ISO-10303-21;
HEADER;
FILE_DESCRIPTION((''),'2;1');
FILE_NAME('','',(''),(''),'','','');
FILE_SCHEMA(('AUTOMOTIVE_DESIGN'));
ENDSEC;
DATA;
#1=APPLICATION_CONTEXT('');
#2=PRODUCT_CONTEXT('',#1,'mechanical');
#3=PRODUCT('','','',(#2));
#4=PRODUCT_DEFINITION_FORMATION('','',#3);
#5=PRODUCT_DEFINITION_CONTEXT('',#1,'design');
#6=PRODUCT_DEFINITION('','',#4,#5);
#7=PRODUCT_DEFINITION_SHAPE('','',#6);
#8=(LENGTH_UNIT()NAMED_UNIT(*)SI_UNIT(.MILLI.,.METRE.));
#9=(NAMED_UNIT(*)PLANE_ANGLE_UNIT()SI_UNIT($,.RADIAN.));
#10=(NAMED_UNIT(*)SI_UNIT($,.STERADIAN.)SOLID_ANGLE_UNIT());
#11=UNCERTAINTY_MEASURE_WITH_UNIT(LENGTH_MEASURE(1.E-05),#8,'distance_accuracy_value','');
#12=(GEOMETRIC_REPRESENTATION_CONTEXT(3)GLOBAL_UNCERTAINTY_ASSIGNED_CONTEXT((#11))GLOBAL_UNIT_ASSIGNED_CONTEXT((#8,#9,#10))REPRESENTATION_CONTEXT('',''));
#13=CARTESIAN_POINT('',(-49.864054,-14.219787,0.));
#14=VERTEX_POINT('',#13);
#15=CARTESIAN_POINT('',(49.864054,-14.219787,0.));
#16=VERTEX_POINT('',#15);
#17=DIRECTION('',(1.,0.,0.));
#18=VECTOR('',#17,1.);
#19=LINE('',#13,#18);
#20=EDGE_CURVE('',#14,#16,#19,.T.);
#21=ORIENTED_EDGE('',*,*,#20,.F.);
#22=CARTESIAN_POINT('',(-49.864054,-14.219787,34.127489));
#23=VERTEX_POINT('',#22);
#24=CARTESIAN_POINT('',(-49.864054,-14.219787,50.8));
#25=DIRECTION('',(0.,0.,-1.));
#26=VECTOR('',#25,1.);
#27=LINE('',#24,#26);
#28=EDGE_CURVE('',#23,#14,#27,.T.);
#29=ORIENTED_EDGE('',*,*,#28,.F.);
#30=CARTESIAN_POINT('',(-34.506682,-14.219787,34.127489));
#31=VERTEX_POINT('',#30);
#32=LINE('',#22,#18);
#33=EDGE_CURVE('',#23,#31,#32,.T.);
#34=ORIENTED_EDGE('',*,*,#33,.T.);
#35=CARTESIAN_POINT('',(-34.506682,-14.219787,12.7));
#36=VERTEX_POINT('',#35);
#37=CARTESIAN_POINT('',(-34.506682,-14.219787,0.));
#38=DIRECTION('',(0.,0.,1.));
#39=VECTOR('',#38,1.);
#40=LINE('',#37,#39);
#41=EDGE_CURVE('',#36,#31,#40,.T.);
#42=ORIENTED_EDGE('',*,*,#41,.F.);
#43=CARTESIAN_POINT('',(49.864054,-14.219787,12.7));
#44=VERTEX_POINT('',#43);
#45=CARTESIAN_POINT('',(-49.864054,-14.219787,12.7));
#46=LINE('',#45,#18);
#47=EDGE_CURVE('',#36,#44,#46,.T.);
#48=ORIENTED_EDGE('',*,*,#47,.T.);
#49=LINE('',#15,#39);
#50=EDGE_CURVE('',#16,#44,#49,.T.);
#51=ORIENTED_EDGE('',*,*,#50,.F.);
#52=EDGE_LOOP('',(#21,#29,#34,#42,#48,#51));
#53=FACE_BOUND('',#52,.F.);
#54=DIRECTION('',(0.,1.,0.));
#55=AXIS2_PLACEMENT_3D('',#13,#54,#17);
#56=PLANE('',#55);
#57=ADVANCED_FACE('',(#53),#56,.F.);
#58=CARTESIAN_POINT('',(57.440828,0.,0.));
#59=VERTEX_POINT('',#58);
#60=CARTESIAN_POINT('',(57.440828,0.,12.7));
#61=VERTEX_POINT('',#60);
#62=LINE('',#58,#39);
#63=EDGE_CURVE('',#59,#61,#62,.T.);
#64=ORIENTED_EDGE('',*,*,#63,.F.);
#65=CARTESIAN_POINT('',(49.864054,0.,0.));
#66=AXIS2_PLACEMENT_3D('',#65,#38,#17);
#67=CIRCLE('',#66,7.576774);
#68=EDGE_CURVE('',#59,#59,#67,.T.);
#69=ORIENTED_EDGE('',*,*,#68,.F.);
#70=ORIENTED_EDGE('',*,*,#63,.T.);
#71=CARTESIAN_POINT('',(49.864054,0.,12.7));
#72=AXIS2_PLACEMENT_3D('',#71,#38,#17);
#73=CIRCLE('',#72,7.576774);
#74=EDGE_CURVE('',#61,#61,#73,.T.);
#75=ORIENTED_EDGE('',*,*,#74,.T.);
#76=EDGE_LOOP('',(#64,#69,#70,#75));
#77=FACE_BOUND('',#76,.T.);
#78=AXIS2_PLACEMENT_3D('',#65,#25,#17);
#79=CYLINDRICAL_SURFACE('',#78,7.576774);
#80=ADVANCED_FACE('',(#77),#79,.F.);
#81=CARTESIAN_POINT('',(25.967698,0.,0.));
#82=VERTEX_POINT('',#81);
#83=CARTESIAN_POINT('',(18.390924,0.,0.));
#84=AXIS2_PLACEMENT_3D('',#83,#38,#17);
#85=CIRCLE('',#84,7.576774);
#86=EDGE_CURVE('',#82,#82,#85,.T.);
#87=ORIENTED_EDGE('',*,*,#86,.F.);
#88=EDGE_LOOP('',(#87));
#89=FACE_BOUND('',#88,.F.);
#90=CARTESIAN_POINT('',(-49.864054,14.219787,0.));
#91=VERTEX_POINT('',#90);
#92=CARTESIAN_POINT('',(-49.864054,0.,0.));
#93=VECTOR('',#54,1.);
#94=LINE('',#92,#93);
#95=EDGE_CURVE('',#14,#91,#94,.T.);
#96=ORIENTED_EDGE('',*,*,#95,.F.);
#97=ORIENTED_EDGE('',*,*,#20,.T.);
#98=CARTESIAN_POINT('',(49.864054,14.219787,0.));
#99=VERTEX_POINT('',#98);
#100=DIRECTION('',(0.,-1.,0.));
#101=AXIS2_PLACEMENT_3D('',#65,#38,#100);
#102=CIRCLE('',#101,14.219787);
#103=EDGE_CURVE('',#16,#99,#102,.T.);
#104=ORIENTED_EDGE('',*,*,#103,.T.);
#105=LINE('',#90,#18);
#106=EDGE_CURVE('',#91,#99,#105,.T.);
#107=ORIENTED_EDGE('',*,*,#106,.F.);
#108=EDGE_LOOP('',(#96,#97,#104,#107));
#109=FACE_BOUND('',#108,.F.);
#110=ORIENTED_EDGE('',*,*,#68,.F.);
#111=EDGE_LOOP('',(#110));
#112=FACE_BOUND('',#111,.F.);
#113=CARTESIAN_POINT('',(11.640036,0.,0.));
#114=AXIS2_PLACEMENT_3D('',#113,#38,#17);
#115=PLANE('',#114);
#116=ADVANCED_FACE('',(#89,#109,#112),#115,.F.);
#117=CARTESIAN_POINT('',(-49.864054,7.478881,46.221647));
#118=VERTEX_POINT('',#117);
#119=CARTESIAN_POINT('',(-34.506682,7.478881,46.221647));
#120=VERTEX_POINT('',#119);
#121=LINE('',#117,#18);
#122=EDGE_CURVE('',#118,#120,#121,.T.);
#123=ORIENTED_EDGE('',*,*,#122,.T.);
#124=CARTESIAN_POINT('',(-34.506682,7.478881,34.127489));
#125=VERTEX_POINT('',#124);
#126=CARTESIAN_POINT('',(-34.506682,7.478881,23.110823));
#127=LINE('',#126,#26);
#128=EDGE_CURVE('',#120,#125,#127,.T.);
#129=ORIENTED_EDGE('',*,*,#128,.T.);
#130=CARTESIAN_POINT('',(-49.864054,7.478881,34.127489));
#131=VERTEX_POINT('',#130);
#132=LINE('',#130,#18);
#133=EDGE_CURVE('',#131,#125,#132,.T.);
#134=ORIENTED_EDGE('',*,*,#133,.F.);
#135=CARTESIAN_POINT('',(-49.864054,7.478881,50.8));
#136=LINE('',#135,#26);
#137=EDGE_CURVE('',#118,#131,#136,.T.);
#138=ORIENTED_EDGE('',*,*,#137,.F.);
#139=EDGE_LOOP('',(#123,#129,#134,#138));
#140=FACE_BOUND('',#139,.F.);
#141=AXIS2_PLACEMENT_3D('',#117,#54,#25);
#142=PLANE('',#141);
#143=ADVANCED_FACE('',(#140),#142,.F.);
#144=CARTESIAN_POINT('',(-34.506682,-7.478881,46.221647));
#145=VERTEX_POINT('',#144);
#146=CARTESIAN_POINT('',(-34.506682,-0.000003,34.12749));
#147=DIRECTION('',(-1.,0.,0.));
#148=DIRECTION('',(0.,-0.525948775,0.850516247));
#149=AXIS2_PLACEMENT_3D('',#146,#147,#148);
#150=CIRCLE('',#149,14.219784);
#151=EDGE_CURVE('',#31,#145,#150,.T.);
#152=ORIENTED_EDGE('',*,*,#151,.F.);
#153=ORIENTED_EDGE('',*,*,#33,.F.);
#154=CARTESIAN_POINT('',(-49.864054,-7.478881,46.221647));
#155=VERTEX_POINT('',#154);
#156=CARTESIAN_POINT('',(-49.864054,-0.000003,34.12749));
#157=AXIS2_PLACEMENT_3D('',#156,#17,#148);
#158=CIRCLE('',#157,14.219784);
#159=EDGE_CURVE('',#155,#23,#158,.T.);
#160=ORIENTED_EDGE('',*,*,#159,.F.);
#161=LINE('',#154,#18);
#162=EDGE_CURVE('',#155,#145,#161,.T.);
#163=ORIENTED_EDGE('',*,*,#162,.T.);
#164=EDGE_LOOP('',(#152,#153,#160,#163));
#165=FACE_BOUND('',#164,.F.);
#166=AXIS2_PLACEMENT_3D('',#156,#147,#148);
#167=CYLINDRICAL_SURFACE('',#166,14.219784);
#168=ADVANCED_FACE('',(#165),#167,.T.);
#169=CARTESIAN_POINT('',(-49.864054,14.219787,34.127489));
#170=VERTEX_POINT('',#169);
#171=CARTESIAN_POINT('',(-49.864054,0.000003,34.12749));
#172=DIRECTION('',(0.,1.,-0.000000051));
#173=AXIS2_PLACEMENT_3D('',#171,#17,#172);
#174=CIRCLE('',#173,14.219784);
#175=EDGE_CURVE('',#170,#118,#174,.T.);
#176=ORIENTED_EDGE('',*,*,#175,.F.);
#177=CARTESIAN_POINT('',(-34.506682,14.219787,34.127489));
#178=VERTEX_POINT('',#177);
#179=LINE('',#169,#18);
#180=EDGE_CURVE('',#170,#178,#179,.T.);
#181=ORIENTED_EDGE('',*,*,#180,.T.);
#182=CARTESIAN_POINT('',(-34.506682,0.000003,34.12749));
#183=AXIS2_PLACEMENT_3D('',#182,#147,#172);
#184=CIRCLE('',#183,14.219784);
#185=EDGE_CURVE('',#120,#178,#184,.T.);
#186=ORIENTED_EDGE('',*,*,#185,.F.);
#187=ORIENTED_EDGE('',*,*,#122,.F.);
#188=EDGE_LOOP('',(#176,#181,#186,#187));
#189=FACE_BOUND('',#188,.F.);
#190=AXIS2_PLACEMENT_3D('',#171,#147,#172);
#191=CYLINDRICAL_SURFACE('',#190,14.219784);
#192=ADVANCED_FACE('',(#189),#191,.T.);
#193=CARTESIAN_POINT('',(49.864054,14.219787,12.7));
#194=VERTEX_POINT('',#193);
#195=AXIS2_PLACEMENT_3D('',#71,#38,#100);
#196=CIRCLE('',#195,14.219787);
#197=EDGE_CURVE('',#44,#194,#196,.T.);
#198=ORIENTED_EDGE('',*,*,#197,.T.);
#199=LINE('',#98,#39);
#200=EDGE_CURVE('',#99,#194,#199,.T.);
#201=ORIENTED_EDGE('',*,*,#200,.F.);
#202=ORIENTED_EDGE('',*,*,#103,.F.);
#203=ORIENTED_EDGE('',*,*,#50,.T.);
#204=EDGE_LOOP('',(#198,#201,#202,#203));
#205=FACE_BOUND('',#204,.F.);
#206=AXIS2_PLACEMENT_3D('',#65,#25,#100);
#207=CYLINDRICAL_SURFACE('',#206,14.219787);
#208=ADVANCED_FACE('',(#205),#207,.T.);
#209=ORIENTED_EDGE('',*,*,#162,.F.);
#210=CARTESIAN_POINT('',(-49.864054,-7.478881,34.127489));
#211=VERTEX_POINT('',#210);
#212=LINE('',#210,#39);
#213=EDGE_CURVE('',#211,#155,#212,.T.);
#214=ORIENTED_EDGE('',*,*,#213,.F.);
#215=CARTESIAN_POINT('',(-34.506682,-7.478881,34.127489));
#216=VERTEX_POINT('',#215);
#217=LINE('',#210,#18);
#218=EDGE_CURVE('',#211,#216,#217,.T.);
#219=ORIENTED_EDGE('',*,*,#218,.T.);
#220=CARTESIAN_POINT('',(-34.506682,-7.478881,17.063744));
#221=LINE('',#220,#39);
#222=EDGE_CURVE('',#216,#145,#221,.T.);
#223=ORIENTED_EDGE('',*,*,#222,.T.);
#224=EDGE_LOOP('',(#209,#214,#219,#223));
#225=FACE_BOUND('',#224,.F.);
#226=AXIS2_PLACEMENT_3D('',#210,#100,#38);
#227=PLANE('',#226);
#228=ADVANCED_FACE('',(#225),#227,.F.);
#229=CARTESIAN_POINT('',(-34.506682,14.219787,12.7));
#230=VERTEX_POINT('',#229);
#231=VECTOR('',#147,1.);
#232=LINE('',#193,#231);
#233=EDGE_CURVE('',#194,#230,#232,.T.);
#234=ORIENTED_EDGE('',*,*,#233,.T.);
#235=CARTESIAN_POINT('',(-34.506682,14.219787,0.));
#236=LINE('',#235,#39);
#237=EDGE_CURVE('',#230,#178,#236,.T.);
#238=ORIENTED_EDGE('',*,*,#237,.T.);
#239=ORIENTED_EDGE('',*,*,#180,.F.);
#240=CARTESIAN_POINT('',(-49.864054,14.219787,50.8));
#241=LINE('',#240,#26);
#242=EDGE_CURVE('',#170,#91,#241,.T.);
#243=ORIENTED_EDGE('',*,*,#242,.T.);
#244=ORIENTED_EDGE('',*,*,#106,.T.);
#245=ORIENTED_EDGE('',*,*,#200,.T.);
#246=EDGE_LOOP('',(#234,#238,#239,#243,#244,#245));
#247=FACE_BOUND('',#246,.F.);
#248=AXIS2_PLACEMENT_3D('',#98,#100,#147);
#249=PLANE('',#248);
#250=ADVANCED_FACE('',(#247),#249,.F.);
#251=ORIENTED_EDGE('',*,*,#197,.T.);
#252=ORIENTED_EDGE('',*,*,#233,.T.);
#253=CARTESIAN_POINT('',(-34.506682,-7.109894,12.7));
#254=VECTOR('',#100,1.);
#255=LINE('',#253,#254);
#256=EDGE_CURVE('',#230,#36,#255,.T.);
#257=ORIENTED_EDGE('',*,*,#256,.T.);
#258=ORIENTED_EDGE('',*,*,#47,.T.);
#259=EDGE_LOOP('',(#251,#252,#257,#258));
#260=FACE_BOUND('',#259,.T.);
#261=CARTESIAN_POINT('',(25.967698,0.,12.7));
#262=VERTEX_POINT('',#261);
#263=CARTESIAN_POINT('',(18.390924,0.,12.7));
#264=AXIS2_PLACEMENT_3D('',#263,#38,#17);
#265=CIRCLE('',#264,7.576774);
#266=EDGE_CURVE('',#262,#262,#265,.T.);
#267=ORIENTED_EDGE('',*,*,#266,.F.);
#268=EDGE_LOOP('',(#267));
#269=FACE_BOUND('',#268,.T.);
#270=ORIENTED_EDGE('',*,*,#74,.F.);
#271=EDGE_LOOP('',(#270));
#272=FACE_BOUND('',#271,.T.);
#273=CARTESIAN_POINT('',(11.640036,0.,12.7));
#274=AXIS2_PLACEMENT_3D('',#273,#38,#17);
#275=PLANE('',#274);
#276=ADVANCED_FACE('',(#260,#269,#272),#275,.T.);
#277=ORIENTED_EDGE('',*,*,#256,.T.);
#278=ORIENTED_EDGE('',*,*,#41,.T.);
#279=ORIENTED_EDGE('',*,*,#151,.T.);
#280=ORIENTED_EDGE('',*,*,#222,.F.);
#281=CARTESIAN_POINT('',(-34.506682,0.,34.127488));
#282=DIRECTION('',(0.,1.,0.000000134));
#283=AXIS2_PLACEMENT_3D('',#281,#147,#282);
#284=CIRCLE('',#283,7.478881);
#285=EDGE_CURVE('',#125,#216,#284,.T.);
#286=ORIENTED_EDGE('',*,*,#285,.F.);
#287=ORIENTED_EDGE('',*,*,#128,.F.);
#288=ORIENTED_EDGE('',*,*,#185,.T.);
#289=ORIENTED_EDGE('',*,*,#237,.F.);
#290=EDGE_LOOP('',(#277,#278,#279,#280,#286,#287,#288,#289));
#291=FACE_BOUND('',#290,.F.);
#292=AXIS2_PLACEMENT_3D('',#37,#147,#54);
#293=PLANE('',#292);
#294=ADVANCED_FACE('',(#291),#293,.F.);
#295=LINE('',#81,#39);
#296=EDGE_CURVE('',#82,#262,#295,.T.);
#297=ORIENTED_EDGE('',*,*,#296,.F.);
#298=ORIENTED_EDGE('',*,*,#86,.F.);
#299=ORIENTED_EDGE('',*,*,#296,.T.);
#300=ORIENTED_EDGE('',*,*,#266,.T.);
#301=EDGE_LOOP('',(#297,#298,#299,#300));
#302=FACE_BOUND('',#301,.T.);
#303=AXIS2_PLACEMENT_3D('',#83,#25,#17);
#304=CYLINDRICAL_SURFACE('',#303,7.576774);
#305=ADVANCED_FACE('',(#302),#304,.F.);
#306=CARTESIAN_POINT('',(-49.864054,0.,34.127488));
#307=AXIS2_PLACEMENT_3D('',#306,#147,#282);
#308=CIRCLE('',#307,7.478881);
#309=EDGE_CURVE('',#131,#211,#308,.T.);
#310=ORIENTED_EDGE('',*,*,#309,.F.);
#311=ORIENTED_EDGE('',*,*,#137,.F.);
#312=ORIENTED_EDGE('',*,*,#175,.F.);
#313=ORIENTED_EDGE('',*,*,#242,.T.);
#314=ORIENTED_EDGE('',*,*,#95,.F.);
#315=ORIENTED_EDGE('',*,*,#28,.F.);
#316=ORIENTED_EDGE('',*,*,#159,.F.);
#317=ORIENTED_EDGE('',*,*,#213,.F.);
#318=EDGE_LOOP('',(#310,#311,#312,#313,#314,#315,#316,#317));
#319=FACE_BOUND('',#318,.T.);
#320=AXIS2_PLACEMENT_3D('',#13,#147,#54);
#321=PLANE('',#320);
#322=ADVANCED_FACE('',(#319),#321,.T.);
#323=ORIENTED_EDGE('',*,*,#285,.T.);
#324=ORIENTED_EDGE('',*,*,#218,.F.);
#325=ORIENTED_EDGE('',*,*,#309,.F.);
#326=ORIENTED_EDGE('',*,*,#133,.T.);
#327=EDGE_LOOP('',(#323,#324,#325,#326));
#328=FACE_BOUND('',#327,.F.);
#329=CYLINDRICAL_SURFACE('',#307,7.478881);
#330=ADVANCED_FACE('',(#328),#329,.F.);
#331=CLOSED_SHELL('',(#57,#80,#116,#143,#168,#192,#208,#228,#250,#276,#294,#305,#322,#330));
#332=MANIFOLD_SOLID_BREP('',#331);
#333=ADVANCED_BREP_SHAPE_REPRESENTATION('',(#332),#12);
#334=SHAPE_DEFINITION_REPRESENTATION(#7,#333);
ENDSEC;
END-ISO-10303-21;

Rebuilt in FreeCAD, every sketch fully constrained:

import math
import FreeCAD as App
import Part
import Sketcher

V = App.Vector
Q = App.Units.Quantity

doc = App.newDocument("Part")
params = doc.addObject("Spreadsheet::Sheet", "Params")
for row, (alias, value) in enumerate([
    ("pad1_length", "0.5 in"),
    ("pad2_length", "2 in"),
], start=1):
    params.set(f"A{row}", alias)
    params.set(f"B{row}", "=" + value)
    params.setAlias(f"B{row}", alias)

body = doc.addObject("PartDesign::Body", "Body")

# Sketch on XY plane
sketch1 = body.newObject("Sketcher::SketchObject", "Sketch")
sketch1.AttachmentSupport = (doc.getObject("XY_Plane"), [""])
sketch1.MapMode = "FlatFace"
sketch1.addGeometry(Part.ArcOfCircle(Part.Circle(V(50, 0, 0), V(0, 0, 1), 14), math.radians(-90), math.radians(90)), False)
sketch1.addGeometry(Part.LineSegment(V(50, 14, 0), V(-50, 14, 0)), False)
sketch1.addGeometry(Part.LineSegment(V(-50, 14, 0), V(-50, -14, 0)), False)
sketch1.addGeometry(Part.LineSegment(V(-50, -14, 0), V(50, -14, 0)), False)
sketch1.addGeometry(Part.Circle(V(18, 0, 0), V(0, 0, 1), 8), False)
sketch1.addGeometry(Part.Circle(V(50, 0, 0), V(0, 0, 1), 8), False)
sketch1.addConstraint(Sketcher.Constraint("Tangent", 0, 2, 1, 1))
sketch1.addConstraint(Sketcher.Constraint("Coincident", 1, 2, 2, 1))
sketch1.addConstraint(Sketcher.Constraint("Coincident", 2, 2, 3, 1))
sketch1.addConstraint(Sketcher.Constraint("Tangent", 3, 2, 0, 1))
sketch1.addConstraint(Sketcher.Constraint("Horizontal", 1))
sketch1.addConstraint(Sketcher.Constraint("Vertical", 2))
sketch1.addConstraint(Sketcher.Constraint("Horizontal", 3))
sketch1.addConstraint(Sketcher.Constraint("Coincident", 5, 3, 0, 3))
sketch1.addConstraint(Sketcher.Constraint("Equal", 4, 5))
sketch1.addConstraint(Sketcher.Constraint("Symmetric", 0, 2, 2, 2, -1, 1))
sketch1.addConstraint(Sketcher.Constraint("PointOnObject", 4, 3, -1))
sketch1.addConstraint(Sketcher.Constraint("Diameter", 4, Q("15.153548 mm")))
sketch1.addConstraint(Sketcher.Constraint("Radius", 0, Q("14.219787 mm")))
sketch1.addConstraint(Sketcher.Constraint("DistanceX", 1, 2, 1, 1, Q("99.728108 mm")))
sketch1.addConstraint(Sketcher.Constraint("DistanceX", 4, 3, 0, 3, Q("31.47313 mm")))
pad1 = body.newObject("PartDesign::Pad", "Pad")
pad1.Profile = sketch1
pad1.setExpression("Length", "Params.pad1_length")

# Sketch on XY plane
sketch2 = body.newObject("Sketcher::SketchObject", "Sketch001")
sketch2.AttachmentSupport = (doc.getObject("XY_Plane"), [""])
sketch2.MapMode = "FlatFace"
sketch2.addGeometry(Part.LineSegment(V(-50, 14, 0), V(-50, -14, 0)), False)
sketch2.addGeometry(Part.LineSegment(V(-50, -14, 0), V(-35, -14, 0)), False)
sketch2.addGeometry(Part.LineSegment(V(-35, -14, 0), V(-35, 14, 0)), False)
sketch2.addGeometry(Part.LineSegment(V(-35, 14, 0), V(-50, 14, 0)), False)
sketch2.addConstraint(Sketcher.Constraint("Coincident", 0, 2, 1, 1))
sketch2.addConstraint(Sketcher.Constraint("Coincident", 1, 2, 2, 1))
sketch2.addConstraint(Sketcher.Constraint("Coincident", 2, 2, 3, 1))
sketch2.addConstraint(Sketcher.Constraint("Coincident", 3, 2, 0, 1))
sketch2.addConstraint(Sketcher.Constraint("Vertical", 0))
sketch2.addConstraint(Sketcher.Constraint("Horizontal", 1))
sketch2.addConstraint(Sketcher.Constraint("Vertical", 2))
sketch2.addConstraint(Sketcher.Constraint("Horizontal", 3))
sketch2.addConstraint(Sketcher.Constraint("DistanceX", 1, 1, 1, 2, Q("15.357372 mm")))
sketch2.addConstraint(Sketcher.Constraint("DistanceY", 0, 2, 0, 1, Q("28.439574 mm")))
sketch2.addConstraint(Sketcher.Constraint("DistanceX", 1, 2, -1, 1, Q("34.506682 mm")))
sketch2.addConstraint(Sketcher.Constraint("DistanceY", 0, 2, -1, 1, Q("14.219787 mm")))
pad2 = body.newObject("PartDesign::Pad", "Pad001")
pad2.Profile = sketch2
pad2.setExpression("Length", "Params.pad2_length")

# Sketch on YZ plane
sketch3 = body.newObject("Sketcher::SketchObject", "Sketch002")
sketch3.AttachmentSupport = (doc.getObject("YZ_Plane"), [""])
sketch3.MapMode = "FlatFace"
sketch3.AttachmentOffset = App.Placement(V(0, 0, -49.864054), App.Rotation())
sketch3.addGeometry(Part.ArcOfCircle(Part.Circle(V(0, 34, 0), V(0, 0, 1), 14), math.radians(122), math.radians(180)), False)
sketch3.addGeometry(Part.LineSegment(V(-14, 34, 0), V(-14, 51, 0)), False)
sketch3.addGeometry(Part.LineSegment(V(-14, 51, 0), V(14, 51, 0)), False)
sketch3.addGeometry(Part.LineSegment(V(14, 51, 0), V(14, 34, 0)), False)
sketch3.addGeometry(Part.ArcOfCircle(Part.Circle(V(0, 34, 0), V(0, 0, 1), 14), math.radians(0), math.radians(58)), False)
sketch3.addGeometry(Part.LineSegment(V(7, 46, 0), V(7, 34, 0)), False)
sketch3.addGeometry(Part.ArcOfCircle(Part.Circle(V(0, 34, 0), V(0, 0, 1), 7), math.radians(180), math.radians(360)), False)
sketch3.addGeometry(Part.LineSegment(V(-7, 34, 0), V(-7, 46, 0)), False)
sketch3.addConstraint(Sketcher.Constraint("Tangent", 0, 2, 1, 1))
sketch3.addConstraint(Sketcher.Constraint("Coincident", 1, 2, 2, 1))
sketch3.addConstraint(Sketcher.Constraint("Coincident", 2, 2, 3, 1))
sketch3.addConstraint(Sketcher.Constraint("Tangent", 3, 2, 4, 1))
sketch3.addConstraint(Sketcher.Constraint("Coincident", 4, 2, 5, 1))
sketch3.addConstraint(Sketcher.Constraint("Tangent", 5, 2, 6, 2))
sketch3.addConstraint(Sketcher.Constraint("Tangent", 6, 1, 7, 1))
sketch3.addConstraint(Sketcher.Constraint("Coincident", 7, 2, 0, 1))
sketch3.addConstraint(Sketcher.Constraint("Vertical", 1))
sketch3.addConstraint(Sketcher.Constraint("Horizontal", 2))
sketch3.addConstraint(Sketcher.Constraint("Vertical", 3))
sketch3.addConstraint(Sketcher.Constraint("Vertical", 5))
sketch3.addConstraint(Sketcher.Constraint("Vertical", 7))
sketch3.addConstraint(Sketcher.Constraint("Coincident", 4, 3, 0, 3))
sketch3.addConstraint(Sketcher.Constraint("Coincident", 6, 3, 0, 3))
sketch3.addConstraint(Sketcher.Constraint("Equal", 0, 4))
sketch3.addConstraint(Sketcher.Constraint("PointOnObject", 6, 3, -2))
sketch3.addConstraint(Sketcher.Constraint("DistanceY", -1, 1, 1, 2, Q("2 in")))
sketch3.addConstraint(Sketcher.Constraint("Radius", 6, Q("7.478881 mm")))
sketch3.addConstraint(Sketcher.Constraint("Radius", 0, Q("14.219784 mm")))
sketch3.addConstraint(Sketcher.Constraint("DistanceY", 1, 1, 1, 2, Q("16.672511 mm")))
pocket1 = body.newObject("PartDesign::Pocket", "Pocket")
pocket1.Profile = sketch3
pocket1.Type = "ThroughAll"
pocket1.Reversed = True

# Sketch on YZ plane
sketch4 = body.newObject("Sketcher::SketchObject", "Sketch003")
sketch4.AttachmentSupport = (doc.getObject("YZ_Plane"), [""])
sketch4.MapMode = "FlatFace"
sketch4.AttachmentOffset = App.Placement(V(0, 0, -49.864054), App.Rotation())
sketch4.addGeometry(Part.ArcOfCircle(Part.Circle(V(0, 34, 0), V(0, 0, 1), 14), math.radians(122), math.radians(180)), False)
sketch4.addGeometry(Part.LineSegment(V(-14, 34, 0), V(-14, 51, 0)), False)
sketch4.addGeometry(Part.LineSegment(V(-14, 51, 0), V(14, 51, 0)), False)
sketch4.addGeometry(Part.LineSegment(V(14, 51, 0), V(14, 34, 0)), False)
sketch4.addGeometry(Part.ArcOfCircle(Part.Circle(V(0, 34, 0), V(0, 0, 1), 14), math.radians(0), math.radians(58)), False)
sketch4.addGeometry(Part.LineSegment(V(7, 46, 0), V(7, 34, 0)), False)
sketch4.addGeometry(Part.ArcOfCircle(Part.Circle(V(0, 34, 0), V(0, 0, 1), 7), math.radians(180), math.radians(360)), False)
sketch4.addGeometry(Part.LineSegment(V(-7, 34, 0), V(-7, 46, 0)), False)
sketch4.addConstraint(Sketcher.Constraint("Tangent", 0, 2, 1, 1))
sketch4.addConstraint(Sketcher.Constraint("Coincident", 1, 2, 2, 1))
sketch4.addConstraint(Sketcher.Constraint("Coincident", 2, 2, 3, 1))
sketch4.addConstraint(Sketcher.Constraint("Tangent", 3, 2, 4, 1))
sketch4.addConstraint(Sketcher.Constraint("Coincident", 4, 2, 5, 1))
sketch4.addConstraint(Sketcher.Constraint("Tangent", 5, 2, 6, 2))
sketch4.addConstraint(Sketcher.Constraint("Tangent", 6, 1, 7, 1))
sketch4.addConstraint(Sketcher.Constraint("Coincident", 7, 2, 0, 1))
sketch4.addConstraint(Sketcher.Constraint("Vertical", 1))
sketch4.addConstraint(Sketcher.Constraint("Horizontal", 2))
sketch4.addConstraint(Sketcher.Constraint("Vertical", 3))
sketch4.addConstraint(Sketcher.Constraint("Vertical", 5))
sketch4.addConstraint(Sketcher.Constraint("Vertical", 7))
sketch4.addConstraint(Sketcher.Constraint("Coincident", 4, 3, 0, 3))
sketch4.addConstraint(Sketcher.Constraint("Coincident", 6, 3, 0, 3))
sketch4.addConstraint(Sketcher.Constraint("Equal", 0, 4))
sketch4.addConstraint(Sketcher.Constraint("PointOnObject", 6, 3, -2))
sketch4.addConstraint(Sketcher.Constraint("DistanceY", -1, 1, 1, 2, Q("2 in")))
sketch4.addConstraint(Sketcher.Constraint("Radius", 6, Q("7.478881 mm")))
sketch4.addConstraint(Sketcher.Constraint("Radius", 0, Q("14.219784 mm")))
sketch4.addConstraint(Sketcher.Constraint("DistanceY", 1, 1, 1, 2, Q("16.672511 mm")))
pocket2 = body.newObject("PartDesign::Pocket", "Pocket001")
pocket2.Profile = sketch4
pocket2.Type = "ThroughAll"
pocket2.Reversed = True

doc.recompute()
